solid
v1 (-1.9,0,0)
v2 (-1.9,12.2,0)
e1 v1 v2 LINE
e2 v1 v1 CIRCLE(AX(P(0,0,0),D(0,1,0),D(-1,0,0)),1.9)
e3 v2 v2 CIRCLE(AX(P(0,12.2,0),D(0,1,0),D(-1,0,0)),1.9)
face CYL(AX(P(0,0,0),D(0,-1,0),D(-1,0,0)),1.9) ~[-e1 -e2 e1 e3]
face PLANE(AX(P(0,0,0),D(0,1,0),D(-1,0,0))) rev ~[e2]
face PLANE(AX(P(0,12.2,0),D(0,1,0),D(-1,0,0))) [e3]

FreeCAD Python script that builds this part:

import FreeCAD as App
import Part
import Sketcher

V = App.Vector

doc = App.newDocument("Part")
body = doc.addObject("PartDesign::Body", "Body")

sketch1 = body.newObject("Sketcher::SketchObject", "Sketch")
sketch1.AttachmentSupport = (doc.getObject("XZ_Plane"), [""])
sketch1.MapMode = "FlatFace"
sketch1.addGeometry(Part.Circle(V(0, 0, 0), V(0, 0, 1), 1.9), False)
sketch1.addConstraint(Sketcher.Constraint("Coincident", 0, 3, -1, 1))
sketch1.addConstraint(Sketcher.Constraint("Diameter", 0, 3.8))
pad1 = body.newObject("PartDesign::Pad", "Pad")
pad1.Profile = sketch1
pad1.Length = 12.2
pad1.Reversed = True

doc.recompute()
